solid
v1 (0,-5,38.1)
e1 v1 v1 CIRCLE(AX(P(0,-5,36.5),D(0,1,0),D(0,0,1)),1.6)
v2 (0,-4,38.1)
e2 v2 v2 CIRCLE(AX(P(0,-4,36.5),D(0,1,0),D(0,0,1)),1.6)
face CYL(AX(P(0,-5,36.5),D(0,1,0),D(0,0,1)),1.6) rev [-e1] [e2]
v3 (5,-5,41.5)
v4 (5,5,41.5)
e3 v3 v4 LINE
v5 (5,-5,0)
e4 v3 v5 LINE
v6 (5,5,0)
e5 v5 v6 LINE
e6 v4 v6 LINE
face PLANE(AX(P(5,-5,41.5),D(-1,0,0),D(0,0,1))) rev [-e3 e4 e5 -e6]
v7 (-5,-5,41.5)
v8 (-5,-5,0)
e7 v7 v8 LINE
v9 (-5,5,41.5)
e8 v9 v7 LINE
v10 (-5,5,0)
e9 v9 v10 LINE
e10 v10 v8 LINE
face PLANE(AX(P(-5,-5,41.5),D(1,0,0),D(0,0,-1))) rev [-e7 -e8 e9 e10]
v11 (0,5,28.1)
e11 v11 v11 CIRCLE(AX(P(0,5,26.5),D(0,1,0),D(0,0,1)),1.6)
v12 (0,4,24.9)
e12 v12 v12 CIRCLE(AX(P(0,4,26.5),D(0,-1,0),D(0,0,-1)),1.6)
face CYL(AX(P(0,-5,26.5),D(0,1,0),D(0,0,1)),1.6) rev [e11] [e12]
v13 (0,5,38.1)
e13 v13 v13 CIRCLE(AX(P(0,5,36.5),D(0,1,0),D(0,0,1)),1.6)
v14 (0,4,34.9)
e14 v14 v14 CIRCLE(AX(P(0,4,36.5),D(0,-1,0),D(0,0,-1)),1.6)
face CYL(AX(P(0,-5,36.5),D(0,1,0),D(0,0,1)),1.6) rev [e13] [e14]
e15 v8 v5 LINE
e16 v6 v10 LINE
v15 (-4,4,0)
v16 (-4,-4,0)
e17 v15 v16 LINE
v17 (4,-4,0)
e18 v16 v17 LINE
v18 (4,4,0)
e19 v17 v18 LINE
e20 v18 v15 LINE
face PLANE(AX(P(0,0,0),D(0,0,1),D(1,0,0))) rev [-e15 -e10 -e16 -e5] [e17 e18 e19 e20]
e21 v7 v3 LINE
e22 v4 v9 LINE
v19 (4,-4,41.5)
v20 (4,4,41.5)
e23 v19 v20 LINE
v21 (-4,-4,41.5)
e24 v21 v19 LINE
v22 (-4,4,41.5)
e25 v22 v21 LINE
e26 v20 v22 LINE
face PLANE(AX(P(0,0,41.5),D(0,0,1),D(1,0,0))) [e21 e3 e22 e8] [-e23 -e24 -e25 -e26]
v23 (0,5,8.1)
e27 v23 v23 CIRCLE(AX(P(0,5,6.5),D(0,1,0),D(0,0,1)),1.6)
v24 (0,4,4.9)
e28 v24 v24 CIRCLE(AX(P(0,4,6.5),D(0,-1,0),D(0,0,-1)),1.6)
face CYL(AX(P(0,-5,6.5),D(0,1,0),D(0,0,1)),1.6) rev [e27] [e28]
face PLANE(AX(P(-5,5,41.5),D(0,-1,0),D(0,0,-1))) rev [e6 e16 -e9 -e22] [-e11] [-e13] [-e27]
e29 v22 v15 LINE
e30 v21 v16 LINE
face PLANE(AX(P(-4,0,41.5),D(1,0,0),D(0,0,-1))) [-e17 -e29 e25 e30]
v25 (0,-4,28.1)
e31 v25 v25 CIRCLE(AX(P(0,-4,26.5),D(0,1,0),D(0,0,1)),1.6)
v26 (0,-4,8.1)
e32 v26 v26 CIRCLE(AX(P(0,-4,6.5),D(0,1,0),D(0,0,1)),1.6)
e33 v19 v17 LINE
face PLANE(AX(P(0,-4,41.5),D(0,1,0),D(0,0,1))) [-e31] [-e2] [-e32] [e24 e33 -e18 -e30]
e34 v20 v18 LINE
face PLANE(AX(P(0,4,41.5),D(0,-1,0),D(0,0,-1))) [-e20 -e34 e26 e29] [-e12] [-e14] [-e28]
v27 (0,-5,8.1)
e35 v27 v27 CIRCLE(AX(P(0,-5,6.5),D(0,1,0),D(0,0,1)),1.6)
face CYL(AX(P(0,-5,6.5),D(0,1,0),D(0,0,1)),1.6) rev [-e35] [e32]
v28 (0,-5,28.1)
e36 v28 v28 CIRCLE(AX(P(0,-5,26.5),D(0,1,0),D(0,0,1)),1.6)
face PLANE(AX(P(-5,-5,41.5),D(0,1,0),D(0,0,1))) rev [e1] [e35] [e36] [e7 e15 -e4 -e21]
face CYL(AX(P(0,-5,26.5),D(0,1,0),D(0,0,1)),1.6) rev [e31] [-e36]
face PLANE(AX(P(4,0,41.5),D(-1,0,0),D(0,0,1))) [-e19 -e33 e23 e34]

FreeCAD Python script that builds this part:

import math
import FreeCAD as App
import Part
import Sketcher
Q = App.Units.Quantity


def add_polygon(sketch, points):
    """Adds a closed chain of lines whose ends are joined by coincident constraints."""
    first, n = sketch.GeometryCount, len(points)
    for a, b in zip(points, points[1:] + points[:1]):
        sketch.addGeometry(Part.LineSegment(App.Vector(*a, 0), App.Vector(*b, 0)), False)
    for i in range(n):
        sketch.addConstraint(Sketcher.Constraint("Coincident", first + i, 2, first + (i + 1) % n, 1))

doc = App.newDocument("Part")
body = doc.addObject("PartDesign::Body", "Body")

sketch1 = body.newObject("Sketcher::SketchObject", "Sketch")
sketch1.AttachmentSupport = (doc.getObject("XY_Plane"), [""])
sketch1.MapMode = "FlatFace"
add_polygon(sketch1, [(-5, 5), (-5, -5), (5, -5), (5, 5)])
add_polygon(sketch1, [(4, -4), (-4, -4), (-4, 4), (4, 4)])
sketch1.addConstraint([
    Sketcher.Constraint("Vertical", 0),
    Sketcher.Constraint("Horizontal", 1),
    Sketcher.Constraint("Vertical", 2),
    Sketcher.Constraint("Horizontal", 3),
    Sketcher.Constraint("Horizontal", 4),
    Sketcher.Constraint("Vertical", 5),
    Sketcher.Constraint("Horizontal", 6),
    Sketcher.Constraint("Vertical", 7),
    Sketcher.Constraint("Symmetric", 0, 2, 2, 2, -1, 1),
    Sketcher.Constraint("Symmetric", 4, 2, 6, 2, -1, 1),
    Sketcher.Constraint("Equal", 3, 0),
    Sketcher.Constraint("Equal", 6, 5),
    Sketcher.Constraint("DistanceX", 1, 1, 1, 2, Q("10 mm")),
    Sketcher.Constraint("DistanceX", 4, 2, 4, 1, Q("8 mm")),
])
pad1 = body.newObject("PartDesign::Pad", "Pad")
pad1.Profile = sketch1
pad1.Length = 41.5

sketch2 = body.newObject("Sketcher::SketchObject", "Sketch001")
sketch2.AttachmentSupport = (doc.getObject("XZ_Plane"), [""])
sketch2.MapMode = "FlatFace"
sketch2.AttachmentOffset = App.Placement(App.Vector(0, 0, -5), App.Rotation())
sketch2.addGeometry([
    Part.ArcOfCircle(Part.Circle(App.Vector(0, 6.5, 0), App.Vector(0, 0, 1), 1.6), math.radians(-90), math.radians(0)),
    Part.ArcOfCircle(Part.Circle(App.Vector(0, 6.5, 0), App.Vector(0, 0, 1), 1.6), math.radians(90), math.radians(270)),
    Part.ArcOfCircle(Part.Circle(App.Vector(0, 6.5, 0), App.Vector(0, 0, 1), 1.6), math.radians(0), math.radians(90)),
    Part.ArcOfCircle(Part.Circle(App.Vector(0, 26.5, 0), App.Vector(0, 0, 1), 1.6), math.radians(-90), math.radians(0)),
    Part.ArcOfCircle(Part.Circle(App.Vector(0, 26.5, 0), App.Vector(0, 0, 1), 1.6), math.radians(90), math.radians(270)),
    Part.ArcOfCircle(Part.Circle(App.Vector(0, 26.5, 0), App.Vector(0, 0, 1), 1.6), math.radians(0), math.radians(90)),
    Part.Circle(App.Vector(0, 36.5, 0), App.Vector(0, 0, 1), 1.6),
], False)
sketch2.addConstraint([
    Sketcher.Constraint("Tangent", 0, 1, 1, 2),
    Sketcher.Constraint("Tangent", 1, 1, 2, 2),
    Sketcher.Constraint("Tangent", 2, 1, 0, 2),
    Sketcher.Constraint("Tangent", 3, 1, 4, 2),
    Sketcher.Constraint("Tangent", 4, 1, 5, 2),
    Sketcher.Constraint("Tangent", 5, 1, 3, 2),
    Sketcher.Constraint("Equal", 2, 3),
    Sketcher.Constraint("Equal", 5, 6),
    Sketcher.Constraint("PointOnObject", 0, 3, -2),
    Sketcher.Constraint("PointOnObject", 3, 3, -2),
    Sketcher.Constraint("PointOnObject", 6, 3, -2),
    Sketcher.Constraint("PointOnObject", 0, 1, -2),
    Sketcher.Constraint("PointOnObject", 1, 1, -2),
    Sketcher.Constraint("PointOnObject", 3, 1, -2),
    Sketcher.Constraint("PointOnObject", 4, 1, -2),
    Sketcher.Constraint("Horizontal", 1, 3, 2, 1),
    Sketcher.Constraint("Horizontal", 4, 3, 5, 1),
    Sketcher.Constraint("Diameter", 6, Q("3.2 mm")),
    Sketcher.Constraint("DistanceY", 0, 3, 3, 3, Q("20 mm")),
    Sketcher.Constraint("DistanceY", 3, 3, 6, 3, Q("10 mm")),
    Sketcher.Constraint("DistanceY", -1, 1, 0, 3, Q("6.5 mm")),
])
pocket1 = body.newObject("PartDesign::Pocket", "Pocket")
pocket1.Profile = sketch2
pocket1.Length = 10
pocket1.Reversed = True

doc.recompute()
